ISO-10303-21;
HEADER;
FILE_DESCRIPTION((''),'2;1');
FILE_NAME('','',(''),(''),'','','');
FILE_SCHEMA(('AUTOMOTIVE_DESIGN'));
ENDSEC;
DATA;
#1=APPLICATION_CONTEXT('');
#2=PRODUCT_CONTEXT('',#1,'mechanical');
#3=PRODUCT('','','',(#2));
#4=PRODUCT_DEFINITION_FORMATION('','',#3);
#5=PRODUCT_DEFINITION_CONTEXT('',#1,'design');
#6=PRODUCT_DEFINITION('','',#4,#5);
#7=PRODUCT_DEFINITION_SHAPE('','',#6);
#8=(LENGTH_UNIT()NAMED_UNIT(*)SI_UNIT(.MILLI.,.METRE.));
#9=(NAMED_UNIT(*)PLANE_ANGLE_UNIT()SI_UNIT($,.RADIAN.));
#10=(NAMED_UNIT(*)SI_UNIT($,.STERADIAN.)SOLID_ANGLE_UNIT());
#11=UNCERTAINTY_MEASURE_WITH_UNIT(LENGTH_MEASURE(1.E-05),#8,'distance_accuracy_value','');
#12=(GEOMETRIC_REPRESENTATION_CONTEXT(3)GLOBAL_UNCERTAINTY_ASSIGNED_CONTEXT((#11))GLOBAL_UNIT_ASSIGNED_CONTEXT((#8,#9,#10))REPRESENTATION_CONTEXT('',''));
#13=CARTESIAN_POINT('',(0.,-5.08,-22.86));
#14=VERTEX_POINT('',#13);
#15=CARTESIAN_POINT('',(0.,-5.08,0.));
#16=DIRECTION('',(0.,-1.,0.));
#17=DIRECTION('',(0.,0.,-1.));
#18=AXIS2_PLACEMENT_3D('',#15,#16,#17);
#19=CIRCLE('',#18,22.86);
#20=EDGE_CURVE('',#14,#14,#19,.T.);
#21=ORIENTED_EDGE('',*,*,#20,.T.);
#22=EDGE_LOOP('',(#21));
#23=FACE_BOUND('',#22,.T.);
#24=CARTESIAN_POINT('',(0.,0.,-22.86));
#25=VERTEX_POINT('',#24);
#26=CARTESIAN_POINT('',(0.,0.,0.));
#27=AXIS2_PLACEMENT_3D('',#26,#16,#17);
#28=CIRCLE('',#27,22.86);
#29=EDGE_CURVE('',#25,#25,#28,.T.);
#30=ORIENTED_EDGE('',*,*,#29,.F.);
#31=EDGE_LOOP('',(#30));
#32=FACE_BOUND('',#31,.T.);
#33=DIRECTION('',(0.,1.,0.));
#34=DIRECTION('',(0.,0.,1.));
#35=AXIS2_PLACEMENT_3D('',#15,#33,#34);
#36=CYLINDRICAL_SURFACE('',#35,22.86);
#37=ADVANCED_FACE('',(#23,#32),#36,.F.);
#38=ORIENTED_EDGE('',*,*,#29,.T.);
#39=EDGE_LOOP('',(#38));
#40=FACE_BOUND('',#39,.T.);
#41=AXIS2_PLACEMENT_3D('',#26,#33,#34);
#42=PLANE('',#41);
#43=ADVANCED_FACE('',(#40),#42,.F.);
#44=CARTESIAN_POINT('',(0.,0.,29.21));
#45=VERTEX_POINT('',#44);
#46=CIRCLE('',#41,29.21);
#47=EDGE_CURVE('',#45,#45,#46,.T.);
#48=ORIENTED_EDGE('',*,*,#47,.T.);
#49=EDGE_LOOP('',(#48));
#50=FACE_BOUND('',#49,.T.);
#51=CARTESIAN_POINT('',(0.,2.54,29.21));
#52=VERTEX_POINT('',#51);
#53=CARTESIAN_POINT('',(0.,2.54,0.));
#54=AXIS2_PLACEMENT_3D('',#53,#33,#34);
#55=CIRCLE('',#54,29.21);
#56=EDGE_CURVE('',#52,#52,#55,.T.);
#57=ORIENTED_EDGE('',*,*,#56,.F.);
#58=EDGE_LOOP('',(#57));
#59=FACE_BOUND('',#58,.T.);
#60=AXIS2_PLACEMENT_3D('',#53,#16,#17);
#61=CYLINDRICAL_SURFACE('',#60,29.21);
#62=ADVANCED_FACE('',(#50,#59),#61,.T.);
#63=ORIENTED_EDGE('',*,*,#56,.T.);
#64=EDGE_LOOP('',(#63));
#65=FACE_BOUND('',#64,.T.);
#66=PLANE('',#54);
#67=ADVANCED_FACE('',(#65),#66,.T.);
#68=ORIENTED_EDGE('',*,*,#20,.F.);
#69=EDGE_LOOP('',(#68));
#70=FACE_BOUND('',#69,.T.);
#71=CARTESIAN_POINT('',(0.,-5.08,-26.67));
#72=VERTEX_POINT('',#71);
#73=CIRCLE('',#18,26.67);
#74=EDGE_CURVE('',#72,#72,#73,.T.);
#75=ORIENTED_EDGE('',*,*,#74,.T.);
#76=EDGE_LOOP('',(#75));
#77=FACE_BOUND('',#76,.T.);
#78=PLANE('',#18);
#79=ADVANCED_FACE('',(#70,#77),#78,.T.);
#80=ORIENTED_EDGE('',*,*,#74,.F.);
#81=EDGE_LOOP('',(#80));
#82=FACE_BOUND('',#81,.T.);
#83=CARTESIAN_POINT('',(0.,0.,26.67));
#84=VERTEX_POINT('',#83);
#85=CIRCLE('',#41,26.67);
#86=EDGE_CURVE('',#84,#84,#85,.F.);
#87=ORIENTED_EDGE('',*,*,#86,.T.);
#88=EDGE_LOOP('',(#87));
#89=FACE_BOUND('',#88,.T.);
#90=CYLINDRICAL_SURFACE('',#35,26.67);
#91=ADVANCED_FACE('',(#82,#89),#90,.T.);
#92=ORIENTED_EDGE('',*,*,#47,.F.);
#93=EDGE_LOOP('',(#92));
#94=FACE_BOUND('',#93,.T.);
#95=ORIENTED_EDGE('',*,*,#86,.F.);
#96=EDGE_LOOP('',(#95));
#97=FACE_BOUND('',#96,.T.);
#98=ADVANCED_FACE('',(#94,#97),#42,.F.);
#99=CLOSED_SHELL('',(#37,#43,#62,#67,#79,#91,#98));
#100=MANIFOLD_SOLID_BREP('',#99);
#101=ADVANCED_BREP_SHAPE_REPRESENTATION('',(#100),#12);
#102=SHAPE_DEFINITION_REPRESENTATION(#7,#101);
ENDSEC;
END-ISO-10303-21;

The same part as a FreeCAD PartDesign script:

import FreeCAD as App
import Part
import Sketcher
from FreeCAD import Vector
Q = App.Units.Quantity

doc = App.newDocument("Part")
body = doc.addObject("PartDesign::Body", "Body")

sketch1 = body.newObject("Sketcher::SketchObject", "Sketch")
sketch1.AttachmentSupport = (doc.getObject("XZ_Plane"), [""])
sketch1.MapMode = "FlatFace"
sketch1.addGeometry(Part.Circle(Vector(0, 0, 0), Vector(0, 0, 1), 29), False)
sketch1.addConstraint([
    Sketcher.Constraint("Coincident", 0, 3, -1, 1),
    Sketcher.Constraint("Diameter", 0, Q("2.3 in")),
])
pad1 = body.newObject("PartDesign::Pad", "Pad")
pad1.Profile = sketch1
pad1.Length = Q("0.1 in")
pad1.Reversed = True

sketch2 = body.newObject("Sketcher::SketchObject", "Sketch001")
sketch2.AttachmentSupport = (doc.getObject("XZ_Plane"), [""])
sketch2.MapMode = "FlatFace"
sketch2.addGeometry([
    Part.Circle(Vector(0, 0, 0), Vector(0, 0, 1), 27),
    Part.Circle(Vector(0, 0, 0), Vector(0, 0, 1), 23),
], False)
sketch2.addConstraint([
    Sketcher.Constraint("Coincident", 0, 3, -1, 1),
    Sketcher.Constraint("Coincident", 1, 3, -1, 1),
    Sketcher.Constraint("Diameter", 0, Q("2.1 in")),
    Sketcher.Constraint("Diameter", 1, Q("1.8 in")),
])
pad2 = body.newObject("PartDesign::Pad", "Pad001")
pad2.Profile = sketch2
pad2.Length = Q("0.2 in")

doc.recompute()
